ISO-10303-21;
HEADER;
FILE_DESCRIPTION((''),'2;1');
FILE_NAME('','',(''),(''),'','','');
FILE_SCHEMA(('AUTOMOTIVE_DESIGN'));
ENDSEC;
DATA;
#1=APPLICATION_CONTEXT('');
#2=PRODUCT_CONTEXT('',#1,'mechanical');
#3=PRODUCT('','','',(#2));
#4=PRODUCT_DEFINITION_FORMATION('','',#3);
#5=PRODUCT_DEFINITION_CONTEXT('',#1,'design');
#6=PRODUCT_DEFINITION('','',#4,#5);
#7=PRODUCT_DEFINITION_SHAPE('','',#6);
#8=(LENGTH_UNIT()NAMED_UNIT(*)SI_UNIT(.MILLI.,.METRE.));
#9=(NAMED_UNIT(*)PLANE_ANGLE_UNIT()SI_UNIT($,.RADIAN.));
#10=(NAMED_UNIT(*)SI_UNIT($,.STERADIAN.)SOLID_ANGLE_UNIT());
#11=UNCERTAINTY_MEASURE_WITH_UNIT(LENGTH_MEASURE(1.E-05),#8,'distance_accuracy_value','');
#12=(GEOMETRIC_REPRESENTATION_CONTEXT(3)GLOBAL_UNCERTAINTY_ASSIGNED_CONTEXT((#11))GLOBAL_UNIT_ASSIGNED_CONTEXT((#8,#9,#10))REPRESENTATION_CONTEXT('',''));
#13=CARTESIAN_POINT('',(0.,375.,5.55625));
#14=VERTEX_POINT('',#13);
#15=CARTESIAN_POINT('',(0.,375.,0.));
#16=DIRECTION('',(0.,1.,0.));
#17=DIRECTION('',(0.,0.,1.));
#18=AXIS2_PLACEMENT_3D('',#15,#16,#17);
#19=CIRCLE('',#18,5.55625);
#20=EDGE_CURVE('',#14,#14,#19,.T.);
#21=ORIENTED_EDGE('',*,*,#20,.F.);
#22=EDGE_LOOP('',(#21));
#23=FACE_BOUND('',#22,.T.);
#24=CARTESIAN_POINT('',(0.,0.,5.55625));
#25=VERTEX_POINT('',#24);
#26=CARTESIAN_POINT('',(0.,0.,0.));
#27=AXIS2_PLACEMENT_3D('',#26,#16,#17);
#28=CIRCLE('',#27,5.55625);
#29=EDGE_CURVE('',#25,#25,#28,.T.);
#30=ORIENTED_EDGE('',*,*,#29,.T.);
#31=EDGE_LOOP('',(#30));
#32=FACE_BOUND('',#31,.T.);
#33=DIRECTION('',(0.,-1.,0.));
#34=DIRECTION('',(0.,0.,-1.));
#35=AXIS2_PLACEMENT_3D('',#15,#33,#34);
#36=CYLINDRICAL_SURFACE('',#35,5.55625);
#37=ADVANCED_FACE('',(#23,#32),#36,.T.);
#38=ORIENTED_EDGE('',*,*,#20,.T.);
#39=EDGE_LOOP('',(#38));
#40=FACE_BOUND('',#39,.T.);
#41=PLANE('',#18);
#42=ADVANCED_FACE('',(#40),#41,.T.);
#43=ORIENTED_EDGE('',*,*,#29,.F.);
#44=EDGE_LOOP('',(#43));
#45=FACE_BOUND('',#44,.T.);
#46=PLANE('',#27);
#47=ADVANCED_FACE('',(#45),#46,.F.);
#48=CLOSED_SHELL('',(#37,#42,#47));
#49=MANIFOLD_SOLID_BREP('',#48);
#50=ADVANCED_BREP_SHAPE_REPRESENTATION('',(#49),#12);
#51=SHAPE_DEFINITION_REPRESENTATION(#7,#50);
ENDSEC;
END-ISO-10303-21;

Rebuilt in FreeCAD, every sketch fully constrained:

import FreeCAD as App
import Part
import Sketcher

V = App.Vector
Q = App.Units.Quantity

doc = App.newDocument("Part")
body = doc.addObject("PartDesign::Body", "Body")

sketch1 = doc.addObject("Sketcher::SketchObject", "Sketch")
body.addObject(sketch1)
sketch1.AttachmentSupport = (doc.XZ_Plane, [""])
sketch1.MapMode = "FlatFace"
sketch1.addGeometry(Part.Circle(V(0, 0, 0), V(0, 0, 1), 6), False)
sketch1.addConstraint(Sketcher.Constraint("Coincident", 0, 3, -1, 1))
sketch1.addConstraint(Sketcher.Constraint("Diameter", 0, Q("11.1125 mm")))
pad1 = doc.addObject("PartDesign::Pad", "Pad")
body.addObject(pad1)
pad1.Profile = sketch1
pad1.Length = 375
pad1.Reversed = True

doc.recompute()
